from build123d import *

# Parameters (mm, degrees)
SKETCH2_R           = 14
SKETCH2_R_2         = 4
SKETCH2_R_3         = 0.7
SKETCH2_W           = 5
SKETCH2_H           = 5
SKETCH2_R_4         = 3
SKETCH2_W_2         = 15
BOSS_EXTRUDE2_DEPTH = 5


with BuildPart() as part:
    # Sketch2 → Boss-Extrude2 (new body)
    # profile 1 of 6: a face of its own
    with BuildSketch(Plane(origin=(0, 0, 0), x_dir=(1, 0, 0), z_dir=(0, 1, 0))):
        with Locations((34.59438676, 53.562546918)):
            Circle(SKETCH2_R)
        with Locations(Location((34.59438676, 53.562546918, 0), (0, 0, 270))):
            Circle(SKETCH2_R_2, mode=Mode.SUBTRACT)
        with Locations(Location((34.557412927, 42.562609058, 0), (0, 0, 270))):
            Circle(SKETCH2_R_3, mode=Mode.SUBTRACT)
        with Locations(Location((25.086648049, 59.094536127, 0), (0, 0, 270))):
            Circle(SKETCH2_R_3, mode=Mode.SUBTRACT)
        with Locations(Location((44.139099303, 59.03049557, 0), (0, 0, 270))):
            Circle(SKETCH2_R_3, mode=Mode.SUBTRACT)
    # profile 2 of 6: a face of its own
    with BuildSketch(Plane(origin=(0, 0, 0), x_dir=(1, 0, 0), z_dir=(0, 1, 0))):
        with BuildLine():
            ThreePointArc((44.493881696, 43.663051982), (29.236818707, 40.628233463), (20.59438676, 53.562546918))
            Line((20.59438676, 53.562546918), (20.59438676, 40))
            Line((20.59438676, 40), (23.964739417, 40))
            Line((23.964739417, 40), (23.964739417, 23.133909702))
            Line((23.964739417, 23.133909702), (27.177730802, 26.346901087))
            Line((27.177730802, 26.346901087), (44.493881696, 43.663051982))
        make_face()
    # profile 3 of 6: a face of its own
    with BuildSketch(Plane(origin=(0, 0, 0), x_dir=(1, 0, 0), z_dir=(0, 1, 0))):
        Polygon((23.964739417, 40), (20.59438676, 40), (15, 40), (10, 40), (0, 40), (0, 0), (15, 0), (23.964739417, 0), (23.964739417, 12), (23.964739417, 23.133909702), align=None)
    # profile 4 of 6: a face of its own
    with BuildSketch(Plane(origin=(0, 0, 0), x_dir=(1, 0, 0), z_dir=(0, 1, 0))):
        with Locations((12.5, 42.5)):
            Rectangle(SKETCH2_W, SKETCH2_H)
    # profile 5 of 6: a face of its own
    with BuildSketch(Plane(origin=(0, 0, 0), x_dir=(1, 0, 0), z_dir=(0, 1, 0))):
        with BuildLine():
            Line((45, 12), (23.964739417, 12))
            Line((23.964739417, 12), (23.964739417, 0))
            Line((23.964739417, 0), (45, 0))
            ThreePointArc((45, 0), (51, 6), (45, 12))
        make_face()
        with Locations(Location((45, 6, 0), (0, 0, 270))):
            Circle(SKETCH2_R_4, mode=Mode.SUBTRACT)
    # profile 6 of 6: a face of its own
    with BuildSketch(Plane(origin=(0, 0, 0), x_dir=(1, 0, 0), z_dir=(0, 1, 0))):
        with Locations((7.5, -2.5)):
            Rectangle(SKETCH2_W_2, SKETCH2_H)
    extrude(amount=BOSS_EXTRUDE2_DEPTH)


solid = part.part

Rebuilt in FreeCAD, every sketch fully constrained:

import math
import FreeCAD as App
import Part
import Sketcher

V = App.Vector
Q = App.Units.Quantity

doc = App.newDocument("Part")
params = doc.addObject("Spreadsheet::Sheet", "Params")
for row, (alias, value) in enumerate([
    ("sketch1_diameter", "8 mm"),
    ("sketch1_diameter2", "6 mm"),
    ("sketch1_radius", "6 mm"),
    ("sketch1_radius2", "14 mm"),
    ("sketch1_diameter3", "1.4 mm"),
    ("pad1_length", "5 mm"),
], start=1):
    params.set(f"A{row}", alias)
    params.set(f"B{row}", "=" + value)
    params.setAlias(f"B{row}", alias)

body = doc.addObject("PartDesign::Body", "Body")

sketch1 = doc.addObject("Sketcher::SketchObject", "Sketch")
body.addObject(sketch1)
sketch1.AttachmentSupport = (doc.XZ_Plane, [""])
sketch1.MapMode = "FlatFace"
sketch1.addGeometry(Part.LineSegment(V(20.6, -53.6, 0), V(20.6, -40, 0)), False)
sketch1.addGeometry(Part.LineSegment(V(20.6, -40, 0), V(15, -40, 0)), False)
sketch1.addGeometry(Part.LineSegment(V(15, -40, 0), V(15, -45, 0)), False)
sketch1.addGeometry(Part.LineSegment(V(15, -45, 0), V(10, -45, 0)), False)
sketch1.addGeometry(Part.LineSegment(V(10, -45, 0), V(10, -40, 0)), False)
sketch1.addGeometry(Part.LineSegment(V(10, -40, 0), V(0, -40, 0)), False)
sketch1.addGeometry(Part.LineSegment(V(0, -40, 0), V(0, 5, 0)), False)
sketch1.addGeometry(Part.LineSegment(V(0, 5, 0), V(15, 5, 0)), False)
sketch1.addGeometry(Part.LineSegment(V(15, 5, 0), V(15, 0, 0)), False)
sketch1.addGeometry(Part.LineSegment(V(15, 0, 0), V(45, 0, 0)), False)
sketch1.addGeometry(Part.ArcOfCircle(Part.Circle(V(45, -6, 0), V(0, 0, 1), 6), math.radians(-90), math.radians(90)), False)
sketch1.addGeometry(Part.LineSegment(V(45, -12, 0), V(24, -12, 0)), False)
sketch1.addGeometry(Part.LineSegment(V(24, -12, 0), V(24, -23.1, 0)), False)
sketch1.addGeometry(Part.LineSegment(V(24, -23.1, 0), V(27.2, -26.3, 0)), False)
sketch1.addGeometry(Part.LineSegment(V(27.2, -26.3, 0), V(44.5, -43.7, 0)), False)
sketch1.addGeometry(Part.ArcOfCircle(Part.Circle(V(34.6, -53.6, 0), V(0, 0, 1), 14), math.radians(180), math.radians(405)), False)
sketch1.addGeometry(Part.Circle(V(34.6, -42.6, 0), V(0, 0, 1), 0.7), False)
sketch1.addGeometry(Part.Circle(V(34.6, -53.6, 0), V(0, 0, 1), 4), False)
sketch1.addGeometry(Part.Circle(V(25.1, -59.1, 0), V(0, 0, 1), 0.7), False)
sketch1.addGeometry(Part.Circle(V(44.1, -59, 0), V(0, 0, 1), 0.7), False)
sketch1.addGeometry(Part.Circle(V(45, -6, 0), V(0, 0, 1), 3), False)
sketch1.addConstraint(Sketcher.Constraint("Coincident", 0, 2, 1, 1))
sketch1.addConstraint(Sketcher.Constraint("Coincident", 1, 2, 2, 1))
sketch1.addConstraint(Sketcher.Constraint("Coincident", 2, 2, 3, 1))
sketch1.addConstraint(Sketcher.Constraint("Coincident", 3, 2, 4, 1))
sketch1.addConstraint(Sketcher.Constraint("Coincident", 4, 2, 5, 1))
sketch1.addConstraint(Sketcher.Constraint("Coincident", 5, 2, 6, 1))
sketch1.addConstraint(Sketcher.Constraint("Coincident", 6, 2, 7, 1))
sketch1.addConstraint(Sketcher.Constraint("Coincident", 7, 2, 8, 1))
sketch1.addConstraint(Sketcher.Constraint("Coincident", 8, 2, 9, 1))
sketch1.addConstraint(Sketcher.Constraint("Tangent", 9, 2, 10, 2))
sketch1.addConstraint(Sketcher.Constraint("Tangent", 10, 1, 11, 1))
sketch1.addConstraint(Sketcher.Constraint("Coincident", 11, 2, 12, 1))
sketch1.addConstraint(Sketcher.Constraint("Coincident", 12, 2, 13, 1))
sketch1.addConstraint(Sketcher.Constraint("Coincident", 13, 2, 14, 1))
sketch1.addConstraint(Sketcher.Constraint("Tangent", 14, 2, 15, 2))
sketch1.addConstraint(Sketcher.Constraint("Tangent", 15, 1, 0, 1))
sketch1.addConstraint(Sketcher.Constraint("Vertical", 0))
sketch1.addConstraint(Sketcher.Constraint("Horizontal", 1))
sketch1.addConstraint(Sketcher.Constraint("Vertical", 2))
sketch1.addConstraint(Sketcher.Constraint("Horizontal", 3))
sketch1.addConstraint(Sketcher.Constraint("Vertical", 4))
sketch1.addConstraint(Sketcher.Constraint("Horizontal", 5))
sketch1.addConstraint(Sketcher.Constraint("Vertical", 6))
sketch1.addConstraint(Sketcher.Constraint("Horizontal", 7))
sketch1.addConstraint(Sketcher.Constraint("Vertical", 8))
sketch1.addConstraint(Sketcher.Constraint("Horizontal", 9))
sketch1.addConstraint(Sketcher.Constraint("Horizontal", 11))
sketch1.addConstraint(Sketcher.Constraint("Vertical", 12))
sketch1.addConstraint(Sketcher.Constraint("Coincident", 17, 3, 15, 3))
sketch1.addConstraint(Sketcher.Constraint("Coincident", 20, 3, 10, 3))
sketch1.addConstraint(Sketcher.Constraint("Equal", 16, 18))
sketch1.addConstraint(Sketcher.Constraint("Equal", 18, 19))
sketch1.addConstraint(Sketcher.Constraint("PointOnObject", 5, 2, -2))
sketch1.addConstraint(Sketcher.Constraint("PointOnObject", 8, 2, -1))
sketch1.addConstraint(Sketcher.Constraint("Parallel", 13, 14))
sketch1.addConstraint(Sketcher.Constraint("Horizontal", 1, 2, 4, 2))
sketch1.addConstraint(Sketcher.Constraint("Vertical", 2, 2, 7, 2))
sketch1.addConstraint(Sketcher.Constraint("Equal", 3, 2))
sketch1.addConstraint(Sketcher.Constraint("Equal", 4, 8))
sketch1.addConstraint(Sketcher.Constraint("Diameter", 17, Q("8 mm")))
sketch1.addConstraint(Sketcher.Constraint("Diameter", 20, Q("6 mm")))
sketch1.addConstraint(Sketcher.Constraint("Radius", 10, Q("6 mm")))
sketch1.addConstraint(Sketcher.Constraint("Radius", 15, Q("14 mm")))
sketch1.addConstraint(Sketcher.Constraint("Diameter", 16, Q("1.4 mm")))
sketch1.addConstraint(Sketcher.Constraint("DistanceX", 3, 2, 3, 1, Q("5 mm")))
sketch1.addConstraint(Sketcher.Constraint("DistanceX", 5, 2, 5, 1, Q("10 mm")))
sketch1.addConstraint(Sketcher.Constraint("DistanceX", 9, 1, 9, 2, Q("30 mm")))
sketch1.addConstraint(Sketcher.Constraint("DistanceY", 6, 1, 6, 2, Q("45 mm")))
sketch1.addConstraint(Sketcher.Constraint("Angle", 13, Q("-45 deg")))
sketch1.addConstraint(Sketcher.Constraint("DistanceX", 11, 2, 11, 1, Q("21.035261 mm")))
sketch1.addConstraint(Sketcher.Constraint("DistanceY", 12, 2, 12, 1, Q("11.13391 mm")))
sketch1.addConstraint(Sketcher.Constraint("DistanceX", -1, 1, 19, 3, Q("44.139099 mm")))
sketch1.addConstraint(Sketcher.Constraint("DistanceY", 13, 2, -1, 1, Q("26.346901 mm")))
sketch1.addConstraint(Sketcher.Constraint("DistanceY", 16, 3, 12, 2, Q("19.428699 mm")))
sketch1.addConstraint(Sketcher.Constraint("DistanceX", 1, 2, 1, 1, Q("5.594387 mm")))
sketch1.addConstraint(Sketcher.Constraint("DistanceX", -1, 1, 18, 3, Q("25.086648 mm")))
sketch1.addConstraint(Sketcher.Constraint("DistanceY", 18, 3, 15, 3, Q("5.531989 mm")))
sketch1.addConstraint(Sketcher.Constraint("DistanceY", 19, 3, 15, 3, Q("5.467949 mm")))
sketch1.addConstraint(Sketcher.Constraint("DistanceX", 16, 3, 14, 2, Q("9.936469 mm")))
sketch1.setExpression("Constraints[39]", "Params.sketch1_diameter")
sketch1.setExpression("Constraints[40]", "Params.sketch1_diameter2")
sketch1.setExpression("Constraints[41]", "Params.sketch1_radius")
sketch1.setExpression("Constraints[42]", "Params.sketch1_radius2")
sketch1.setExpression("Constraints[43]", "Params.sketch1_diameter3")
pad1 = doc.addObject("PartDesign::Pad", "Pad")
body.addObject(pad1)
pad1.Profile = sketch1
pad1.setExpression("Length", "Params.pad1_length")
pad1.Reversed = True

doc.recompute()
